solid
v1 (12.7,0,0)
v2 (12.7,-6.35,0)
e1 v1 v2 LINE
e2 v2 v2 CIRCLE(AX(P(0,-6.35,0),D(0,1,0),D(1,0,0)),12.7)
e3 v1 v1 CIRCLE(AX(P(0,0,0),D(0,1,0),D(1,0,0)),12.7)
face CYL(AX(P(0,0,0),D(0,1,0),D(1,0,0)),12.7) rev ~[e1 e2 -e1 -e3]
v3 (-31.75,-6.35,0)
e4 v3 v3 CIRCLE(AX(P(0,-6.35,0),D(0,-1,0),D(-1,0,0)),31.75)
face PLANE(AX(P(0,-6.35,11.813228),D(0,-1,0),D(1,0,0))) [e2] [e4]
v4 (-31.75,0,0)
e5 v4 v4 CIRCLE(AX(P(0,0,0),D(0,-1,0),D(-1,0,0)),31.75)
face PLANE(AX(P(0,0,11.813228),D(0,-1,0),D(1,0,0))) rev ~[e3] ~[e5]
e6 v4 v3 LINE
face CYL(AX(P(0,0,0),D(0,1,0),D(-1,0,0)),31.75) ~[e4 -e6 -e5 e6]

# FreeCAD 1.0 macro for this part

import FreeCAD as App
import Part
import Sketcher
Q = App.Units.Quantity

doc = App.newDocument("Part")
body = doc.addObject("PartDesign::Body", "Body")

sketch1 = doc.addObject("Sketcher::SketchObject", "Sketch")
body.addObject(sketch1)
sketch1.AttachmentSupport = (doc.XZ_Plane, [""])
sketch1.MapMode = "FlatFace"
sketch1.addGeometry([
    Part.Circle(App.Vector(0, 0, 0), App.Vector(0, 0, 1), 32),
    Part.Circle(App.Vector(0, 0, 0), App.Vector(0, 0, 1), 13),
], False)
sketch1.addConstraint([
    Sketcher.Constraint("Coincident", 0, 3, -1, 1),
    Sketcher.Constraint("Coincident", 1, 3, -1, 1),
    Sketcher.Constraint("Diameter", 1, Q("1 in")),
    Sketcher.Constraint("Diameter", 0, Q("2.5 in")),
])
pad1 = doc.addObject("PartDesign::Pad", "Pad")
body.addObject(pad1)
pad1.Profile = sketch1
pad1.Length = Q("0.25 in")

doc.recompute()
